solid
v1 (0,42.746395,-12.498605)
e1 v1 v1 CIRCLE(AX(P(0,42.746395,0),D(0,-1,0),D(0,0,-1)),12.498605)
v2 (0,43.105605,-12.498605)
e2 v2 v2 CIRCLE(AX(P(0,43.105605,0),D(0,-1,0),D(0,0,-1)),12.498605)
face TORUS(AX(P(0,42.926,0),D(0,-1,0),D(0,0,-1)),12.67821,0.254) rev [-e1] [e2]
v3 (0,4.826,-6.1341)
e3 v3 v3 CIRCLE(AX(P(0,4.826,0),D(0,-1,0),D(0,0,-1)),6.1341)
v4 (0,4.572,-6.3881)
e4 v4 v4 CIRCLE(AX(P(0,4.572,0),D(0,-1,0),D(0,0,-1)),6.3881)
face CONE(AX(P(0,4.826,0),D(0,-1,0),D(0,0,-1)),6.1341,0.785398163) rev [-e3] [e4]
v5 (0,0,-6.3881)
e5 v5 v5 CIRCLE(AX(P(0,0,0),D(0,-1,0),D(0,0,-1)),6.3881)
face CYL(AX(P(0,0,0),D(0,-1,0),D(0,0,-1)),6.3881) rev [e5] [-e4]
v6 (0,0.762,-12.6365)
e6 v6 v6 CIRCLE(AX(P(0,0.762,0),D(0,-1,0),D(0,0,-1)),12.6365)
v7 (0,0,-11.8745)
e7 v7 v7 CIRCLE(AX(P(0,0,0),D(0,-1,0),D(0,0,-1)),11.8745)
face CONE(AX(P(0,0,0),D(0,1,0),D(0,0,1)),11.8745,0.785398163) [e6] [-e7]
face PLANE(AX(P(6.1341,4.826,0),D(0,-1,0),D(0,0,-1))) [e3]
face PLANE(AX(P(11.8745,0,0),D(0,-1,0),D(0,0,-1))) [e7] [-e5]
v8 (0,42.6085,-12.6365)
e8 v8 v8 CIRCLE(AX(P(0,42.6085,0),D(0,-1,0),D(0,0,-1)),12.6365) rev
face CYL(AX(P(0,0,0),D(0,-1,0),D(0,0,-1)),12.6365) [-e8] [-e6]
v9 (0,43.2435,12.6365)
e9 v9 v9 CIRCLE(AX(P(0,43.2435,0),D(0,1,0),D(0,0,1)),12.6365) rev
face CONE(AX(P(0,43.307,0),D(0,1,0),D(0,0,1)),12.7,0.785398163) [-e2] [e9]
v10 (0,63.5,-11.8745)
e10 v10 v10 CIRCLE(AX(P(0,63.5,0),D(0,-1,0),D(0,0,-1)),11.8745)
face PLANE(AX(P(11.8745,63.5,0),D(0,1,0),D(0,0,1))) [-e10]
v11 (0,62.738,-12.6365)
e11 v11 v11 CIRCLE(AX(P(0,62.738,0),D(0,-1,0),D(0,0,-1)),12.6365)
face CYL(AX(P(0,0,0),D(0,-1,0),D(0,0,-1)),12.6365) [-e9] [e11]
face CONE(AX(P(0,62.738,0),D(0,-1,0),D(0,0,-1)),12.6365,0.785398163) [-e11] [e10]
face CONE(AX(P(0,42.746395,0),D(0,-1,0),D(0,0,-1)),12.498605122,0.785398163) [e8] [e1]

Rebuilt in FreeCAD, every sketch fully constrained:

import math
import FreeCAD as App
import Part
import Sketcher
from FreeCAD import Vector
Q = App.Units.Quantity

doc = App.newDocument("Part")
body = doc.addObject("PartDesign::Body", "Body")

# Sketch on XY plane
sketch1 = body.newObject("Sketcher::SketchObject", "Sketch")
sketch1.AttachmentSupport = (doc.getObject("XY_Plane"), [""])
sketch1.MapMode = "FlatFace"
sketch1.addGeometry([
    Part.LineSegment(Vector(12.64, 0.76, 0), Vector(12.64, 62.74, 0)),  # 0
    Part.LineSegment(Vector(12.64, 62.74, 0), Vector(11.87, 63.5, 0)),  # 1
    Part.LineSegment(Vector(11.87, 63.5, 0), Vector(0, 63.5, 0)),  # 2
    Part.LineSegment(Vector(0, 63.5, 0), Vector(0, 4.83, 0)),  # 3
    Part.LineSegment(Vector(0, 4.83, 0), Vector(6.13, 4.83, 0)),  # 4
    Part.LineSegment(Vector(6.13, 4.83, 0), Vector(6.39, 4.57, 0)),  # 5
    Part.LineSegment(Vector(6.39, 4.57, 0), Vector(6.39, 0, 0)),  # 6
    Part.LineSegment(Vector(6.39, 0, 0), Vector(11.87, 0, 0)),  # 7
    Part.LineSegment(Vector(11.87, 0, 0), Vector(12.64, 0.76, 0)),  # 8
], False)
sketch1.addConstraint([
    Sketcher.Constraint("Coincident", 0, 2, 1, 1),
    Sketcher.Constraint("Coincident", 1, 2, 2, 1),
    Sketcher.Constraint("Coincident", 2, 2, 3, 1),
    Sketcher.Constraint("Coincident", 3, 2, 4, 1),
    Sketcher.Constraint("Coincident", 4, 2, 5, 1),
    Sketcher.Constraint("Coincident", 5, 2, 6, 1),
    Sketcher.Constraint("Coincident", 6, 2, 7, 1),
    Sketcher.Constraint("Coincident", 7, 2, 8, 1),
    Sketcher.Constraint("Coincident", 8, 2, 0, 1),
    Sketcher.Constraint("Vertical", 0),
    Sketcher.Constraint("Horizontal", 2),
    Sketcher.Constraint("Vertical", 3),
    Sketcher.Constraint("Horizontal", 4),
    Sketcher.Constraint("Vertical", 6),
    Sketcher.Constraint("Horizontal", 7),
    Sketcher.Constraint("PointOnObject", 2, 2, -2),
    Sketcher.Constraint("PointOnObject", 6, 2, -1),
    Sketcher.Constraint("Parallel", 1, 5),
    Sketcher.Constraint("Perpendicular", 5, 8),
    Sketcher.Constraint("Vertical", 1, 2, 7, 2),
    Sketcher.Constraint("Equal", 1, 8),
    Sketcher.Constraint("DistanceY", 0, 1, 0, 2, Q("2.44 in")),
    Sketcher.Constraint("DistanceY", 3, 2, 3, 1, Q("2.31 in")),
    Sketcher.Constraint("DistanceY", 6, 2, 6, 1, Q("0.18 in")),
    Sketcher.Constraint("DistanceY", -1, 1, 1, 2, Q("2.5 in")),
    Sketcher.Constraint("DistanceX", 7, 1, 7, 2, Q("0.216 in")),
    Sketcher.Constraint("DistanceX", 2, 2, 2, 1, Q("0.4675 in")),
])
revolution = body.newObject("PartDesign::Revolution", "Revolution")
revolution.Profile = sketch1
revolution.ReferenceAxis = (sketch1, ["V_Axis"])
revolution.Angle = 360

# Sketch on XY plane
sketch2 = body.newObject("Sketcher::SketchObject", "Sketch001")
sketch2.AttachmentSupport = (doc.getObject("XY_Plane"), [""])
sketch2.MapMode = "FlatFace"
sketch2.addGeometry([
    Part.LineSegment(Vector(12.7, 42.55, 0), Vector(12.7, 43.31, 0)),
    Part.LineSegment(Vector(12.7, 43.31, 0), Vector(12.5, 43.11, 0)),
    Part.ArcOfCircle(Part.Circle(Vector(12.68, 42.93, 0), Vector(0, 0, 1), 0.25), math.radians(135), math.radians(225)),
    Part.LineSegment(Vector(12.5, 42.75, 0), Vector(12.7, 42.55, 0)),
], False)
sketch2.addConstraint([
    Sketcher.Constraint("Coincident", 0, 2, 1, 1),
    Sketcher.Constraint("Tangent", 1, 2, 2, 1),
    Sketcher.Constraint("Tangent", 2, 2, 3, 1),
    Sketcher.Constraint("Coincident", 3, 2, 0, 1),
    Sketcher.Constraint("Vertical", 0),
    Sketcher.Constraint("Perpendicular", 1, 3),
    Sketcher.Constraint("Vertical", 1, 2, 2, 2),
    Sketcher.Constraint("Radius", 2, Q("0.01 in")),
    Sketcher.Constraint("DistanceY", 0, 1, 0, 2, Q("0.03 in")),
    Sketcher.Constraint("DistanceX", -1, 1, 0, 2, Q("0.5 in")),
    Sketcher.Constraint("DistanceY", -1, 1, 2, 3, Q("1.69 in")),
])
groove = body.newObject("PartDesign::Groove", "Groove")
groove.Profile = sketch2
groove.ReferenceAxis = (sketch2, ["V_Axis"])
groove.Angle = 360

doc.recompute()
